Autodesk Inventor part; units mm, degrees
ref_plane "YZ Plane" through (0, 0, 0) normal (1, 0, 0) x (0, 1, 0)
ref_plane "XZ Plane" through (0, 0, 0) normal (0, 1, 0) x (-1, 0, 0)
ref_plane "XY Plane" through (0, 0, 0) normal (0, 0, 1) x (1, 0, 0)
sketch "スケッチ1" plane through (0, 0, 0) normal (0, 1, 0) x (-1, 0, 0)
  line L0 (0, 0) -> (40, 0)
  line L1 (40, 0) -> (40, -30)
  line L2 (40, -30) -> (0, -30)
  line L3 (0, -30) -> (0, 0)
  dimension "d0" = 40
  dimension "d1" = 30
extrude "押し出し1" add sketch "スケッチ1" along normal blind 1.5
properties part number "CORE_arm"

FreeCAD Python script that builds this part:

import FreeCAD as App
import Part
import Sketcher

doc = App.newDocument("Part")
params = doc.addObject("Spreadsheet::Sheet", "Params")
for row, (alias, value) in enumerate([
    ("sketch1_width", "40 mm"),
    ("sketch1_height", "30 mm"),
    ("pad1_length", "1.5 mm"),
], start=1):
    params.set(f"A{row}", alias)
    params.set(f"B{row}", "=" + value)
    params.setAlias(f"B{row}", alias)

body = doc.addObject("PartDesign::Body", "Body")

sketch1 = doc.addObject("Sketcher::SketchObject", "Sketch")
body.addObject(sketch1)
sketch1.AttachmentSupport = (doc.XZ_Plane, [""])
sketch1.MapMode = "FlatFace"
sketch1.addGeometry([
    Part.LineSegment(App.Vector(-40, 0, 0), App.Vector(0, 0, 0)),
    Part.LineSegment(App.Vector(0, 0, 0), App.Vector(0, -30, 0)),
    Part.LineSegment(App.Vector(0, -30, 0), App.Vector(-40, -30, 0)),
    Part.LineSegment(App.Vector(-40, -30, 0), App.Vector(-40, 0, 0)),
], False)
sketch1.addConstraint([
    Sketcher.Constraint("Coincident", 0, 2, 1, 1),
    Sketcher.Constraint("Coincident", 1, 2, 2, 1),
    Sketcher.Constraint("Coincident", 2, 2, 3, 1),
    Sketcher.Constraint("Coincident", 3, 2, 0, 1),
    Sketcher.Constraint("Horizontal", 0),
    Sketcher.Constraint("Vertical", 1),
    Sketcher.Constraint("Horizontal", 2),
    Sketcher.Constraint("Vertical", 3),
    Sketcher.Constraint("Coincident", 0, 2, -1, 1),
    Sketcher.Constraint("DistanceX", 0, 1, 0, 2, 40.0),
    Sketcher.Constraint("DistanceY", 1, 2, 1, 1, 30.0),
])
sketch1.setExpression("Constraints[9]", "Params.sketch1_width")
sketch1.setExpression("Constraints[10]", "Params.sketch1_height")
pad1 = doc.addObject("PartDesign::Pad", "Pad")
body.addObject(pad1)
pad1.Profile = sketch1
pad1.setExpression("Length", "Params.pad1_length")
pad1.Reversed = True

doc.recompute()
